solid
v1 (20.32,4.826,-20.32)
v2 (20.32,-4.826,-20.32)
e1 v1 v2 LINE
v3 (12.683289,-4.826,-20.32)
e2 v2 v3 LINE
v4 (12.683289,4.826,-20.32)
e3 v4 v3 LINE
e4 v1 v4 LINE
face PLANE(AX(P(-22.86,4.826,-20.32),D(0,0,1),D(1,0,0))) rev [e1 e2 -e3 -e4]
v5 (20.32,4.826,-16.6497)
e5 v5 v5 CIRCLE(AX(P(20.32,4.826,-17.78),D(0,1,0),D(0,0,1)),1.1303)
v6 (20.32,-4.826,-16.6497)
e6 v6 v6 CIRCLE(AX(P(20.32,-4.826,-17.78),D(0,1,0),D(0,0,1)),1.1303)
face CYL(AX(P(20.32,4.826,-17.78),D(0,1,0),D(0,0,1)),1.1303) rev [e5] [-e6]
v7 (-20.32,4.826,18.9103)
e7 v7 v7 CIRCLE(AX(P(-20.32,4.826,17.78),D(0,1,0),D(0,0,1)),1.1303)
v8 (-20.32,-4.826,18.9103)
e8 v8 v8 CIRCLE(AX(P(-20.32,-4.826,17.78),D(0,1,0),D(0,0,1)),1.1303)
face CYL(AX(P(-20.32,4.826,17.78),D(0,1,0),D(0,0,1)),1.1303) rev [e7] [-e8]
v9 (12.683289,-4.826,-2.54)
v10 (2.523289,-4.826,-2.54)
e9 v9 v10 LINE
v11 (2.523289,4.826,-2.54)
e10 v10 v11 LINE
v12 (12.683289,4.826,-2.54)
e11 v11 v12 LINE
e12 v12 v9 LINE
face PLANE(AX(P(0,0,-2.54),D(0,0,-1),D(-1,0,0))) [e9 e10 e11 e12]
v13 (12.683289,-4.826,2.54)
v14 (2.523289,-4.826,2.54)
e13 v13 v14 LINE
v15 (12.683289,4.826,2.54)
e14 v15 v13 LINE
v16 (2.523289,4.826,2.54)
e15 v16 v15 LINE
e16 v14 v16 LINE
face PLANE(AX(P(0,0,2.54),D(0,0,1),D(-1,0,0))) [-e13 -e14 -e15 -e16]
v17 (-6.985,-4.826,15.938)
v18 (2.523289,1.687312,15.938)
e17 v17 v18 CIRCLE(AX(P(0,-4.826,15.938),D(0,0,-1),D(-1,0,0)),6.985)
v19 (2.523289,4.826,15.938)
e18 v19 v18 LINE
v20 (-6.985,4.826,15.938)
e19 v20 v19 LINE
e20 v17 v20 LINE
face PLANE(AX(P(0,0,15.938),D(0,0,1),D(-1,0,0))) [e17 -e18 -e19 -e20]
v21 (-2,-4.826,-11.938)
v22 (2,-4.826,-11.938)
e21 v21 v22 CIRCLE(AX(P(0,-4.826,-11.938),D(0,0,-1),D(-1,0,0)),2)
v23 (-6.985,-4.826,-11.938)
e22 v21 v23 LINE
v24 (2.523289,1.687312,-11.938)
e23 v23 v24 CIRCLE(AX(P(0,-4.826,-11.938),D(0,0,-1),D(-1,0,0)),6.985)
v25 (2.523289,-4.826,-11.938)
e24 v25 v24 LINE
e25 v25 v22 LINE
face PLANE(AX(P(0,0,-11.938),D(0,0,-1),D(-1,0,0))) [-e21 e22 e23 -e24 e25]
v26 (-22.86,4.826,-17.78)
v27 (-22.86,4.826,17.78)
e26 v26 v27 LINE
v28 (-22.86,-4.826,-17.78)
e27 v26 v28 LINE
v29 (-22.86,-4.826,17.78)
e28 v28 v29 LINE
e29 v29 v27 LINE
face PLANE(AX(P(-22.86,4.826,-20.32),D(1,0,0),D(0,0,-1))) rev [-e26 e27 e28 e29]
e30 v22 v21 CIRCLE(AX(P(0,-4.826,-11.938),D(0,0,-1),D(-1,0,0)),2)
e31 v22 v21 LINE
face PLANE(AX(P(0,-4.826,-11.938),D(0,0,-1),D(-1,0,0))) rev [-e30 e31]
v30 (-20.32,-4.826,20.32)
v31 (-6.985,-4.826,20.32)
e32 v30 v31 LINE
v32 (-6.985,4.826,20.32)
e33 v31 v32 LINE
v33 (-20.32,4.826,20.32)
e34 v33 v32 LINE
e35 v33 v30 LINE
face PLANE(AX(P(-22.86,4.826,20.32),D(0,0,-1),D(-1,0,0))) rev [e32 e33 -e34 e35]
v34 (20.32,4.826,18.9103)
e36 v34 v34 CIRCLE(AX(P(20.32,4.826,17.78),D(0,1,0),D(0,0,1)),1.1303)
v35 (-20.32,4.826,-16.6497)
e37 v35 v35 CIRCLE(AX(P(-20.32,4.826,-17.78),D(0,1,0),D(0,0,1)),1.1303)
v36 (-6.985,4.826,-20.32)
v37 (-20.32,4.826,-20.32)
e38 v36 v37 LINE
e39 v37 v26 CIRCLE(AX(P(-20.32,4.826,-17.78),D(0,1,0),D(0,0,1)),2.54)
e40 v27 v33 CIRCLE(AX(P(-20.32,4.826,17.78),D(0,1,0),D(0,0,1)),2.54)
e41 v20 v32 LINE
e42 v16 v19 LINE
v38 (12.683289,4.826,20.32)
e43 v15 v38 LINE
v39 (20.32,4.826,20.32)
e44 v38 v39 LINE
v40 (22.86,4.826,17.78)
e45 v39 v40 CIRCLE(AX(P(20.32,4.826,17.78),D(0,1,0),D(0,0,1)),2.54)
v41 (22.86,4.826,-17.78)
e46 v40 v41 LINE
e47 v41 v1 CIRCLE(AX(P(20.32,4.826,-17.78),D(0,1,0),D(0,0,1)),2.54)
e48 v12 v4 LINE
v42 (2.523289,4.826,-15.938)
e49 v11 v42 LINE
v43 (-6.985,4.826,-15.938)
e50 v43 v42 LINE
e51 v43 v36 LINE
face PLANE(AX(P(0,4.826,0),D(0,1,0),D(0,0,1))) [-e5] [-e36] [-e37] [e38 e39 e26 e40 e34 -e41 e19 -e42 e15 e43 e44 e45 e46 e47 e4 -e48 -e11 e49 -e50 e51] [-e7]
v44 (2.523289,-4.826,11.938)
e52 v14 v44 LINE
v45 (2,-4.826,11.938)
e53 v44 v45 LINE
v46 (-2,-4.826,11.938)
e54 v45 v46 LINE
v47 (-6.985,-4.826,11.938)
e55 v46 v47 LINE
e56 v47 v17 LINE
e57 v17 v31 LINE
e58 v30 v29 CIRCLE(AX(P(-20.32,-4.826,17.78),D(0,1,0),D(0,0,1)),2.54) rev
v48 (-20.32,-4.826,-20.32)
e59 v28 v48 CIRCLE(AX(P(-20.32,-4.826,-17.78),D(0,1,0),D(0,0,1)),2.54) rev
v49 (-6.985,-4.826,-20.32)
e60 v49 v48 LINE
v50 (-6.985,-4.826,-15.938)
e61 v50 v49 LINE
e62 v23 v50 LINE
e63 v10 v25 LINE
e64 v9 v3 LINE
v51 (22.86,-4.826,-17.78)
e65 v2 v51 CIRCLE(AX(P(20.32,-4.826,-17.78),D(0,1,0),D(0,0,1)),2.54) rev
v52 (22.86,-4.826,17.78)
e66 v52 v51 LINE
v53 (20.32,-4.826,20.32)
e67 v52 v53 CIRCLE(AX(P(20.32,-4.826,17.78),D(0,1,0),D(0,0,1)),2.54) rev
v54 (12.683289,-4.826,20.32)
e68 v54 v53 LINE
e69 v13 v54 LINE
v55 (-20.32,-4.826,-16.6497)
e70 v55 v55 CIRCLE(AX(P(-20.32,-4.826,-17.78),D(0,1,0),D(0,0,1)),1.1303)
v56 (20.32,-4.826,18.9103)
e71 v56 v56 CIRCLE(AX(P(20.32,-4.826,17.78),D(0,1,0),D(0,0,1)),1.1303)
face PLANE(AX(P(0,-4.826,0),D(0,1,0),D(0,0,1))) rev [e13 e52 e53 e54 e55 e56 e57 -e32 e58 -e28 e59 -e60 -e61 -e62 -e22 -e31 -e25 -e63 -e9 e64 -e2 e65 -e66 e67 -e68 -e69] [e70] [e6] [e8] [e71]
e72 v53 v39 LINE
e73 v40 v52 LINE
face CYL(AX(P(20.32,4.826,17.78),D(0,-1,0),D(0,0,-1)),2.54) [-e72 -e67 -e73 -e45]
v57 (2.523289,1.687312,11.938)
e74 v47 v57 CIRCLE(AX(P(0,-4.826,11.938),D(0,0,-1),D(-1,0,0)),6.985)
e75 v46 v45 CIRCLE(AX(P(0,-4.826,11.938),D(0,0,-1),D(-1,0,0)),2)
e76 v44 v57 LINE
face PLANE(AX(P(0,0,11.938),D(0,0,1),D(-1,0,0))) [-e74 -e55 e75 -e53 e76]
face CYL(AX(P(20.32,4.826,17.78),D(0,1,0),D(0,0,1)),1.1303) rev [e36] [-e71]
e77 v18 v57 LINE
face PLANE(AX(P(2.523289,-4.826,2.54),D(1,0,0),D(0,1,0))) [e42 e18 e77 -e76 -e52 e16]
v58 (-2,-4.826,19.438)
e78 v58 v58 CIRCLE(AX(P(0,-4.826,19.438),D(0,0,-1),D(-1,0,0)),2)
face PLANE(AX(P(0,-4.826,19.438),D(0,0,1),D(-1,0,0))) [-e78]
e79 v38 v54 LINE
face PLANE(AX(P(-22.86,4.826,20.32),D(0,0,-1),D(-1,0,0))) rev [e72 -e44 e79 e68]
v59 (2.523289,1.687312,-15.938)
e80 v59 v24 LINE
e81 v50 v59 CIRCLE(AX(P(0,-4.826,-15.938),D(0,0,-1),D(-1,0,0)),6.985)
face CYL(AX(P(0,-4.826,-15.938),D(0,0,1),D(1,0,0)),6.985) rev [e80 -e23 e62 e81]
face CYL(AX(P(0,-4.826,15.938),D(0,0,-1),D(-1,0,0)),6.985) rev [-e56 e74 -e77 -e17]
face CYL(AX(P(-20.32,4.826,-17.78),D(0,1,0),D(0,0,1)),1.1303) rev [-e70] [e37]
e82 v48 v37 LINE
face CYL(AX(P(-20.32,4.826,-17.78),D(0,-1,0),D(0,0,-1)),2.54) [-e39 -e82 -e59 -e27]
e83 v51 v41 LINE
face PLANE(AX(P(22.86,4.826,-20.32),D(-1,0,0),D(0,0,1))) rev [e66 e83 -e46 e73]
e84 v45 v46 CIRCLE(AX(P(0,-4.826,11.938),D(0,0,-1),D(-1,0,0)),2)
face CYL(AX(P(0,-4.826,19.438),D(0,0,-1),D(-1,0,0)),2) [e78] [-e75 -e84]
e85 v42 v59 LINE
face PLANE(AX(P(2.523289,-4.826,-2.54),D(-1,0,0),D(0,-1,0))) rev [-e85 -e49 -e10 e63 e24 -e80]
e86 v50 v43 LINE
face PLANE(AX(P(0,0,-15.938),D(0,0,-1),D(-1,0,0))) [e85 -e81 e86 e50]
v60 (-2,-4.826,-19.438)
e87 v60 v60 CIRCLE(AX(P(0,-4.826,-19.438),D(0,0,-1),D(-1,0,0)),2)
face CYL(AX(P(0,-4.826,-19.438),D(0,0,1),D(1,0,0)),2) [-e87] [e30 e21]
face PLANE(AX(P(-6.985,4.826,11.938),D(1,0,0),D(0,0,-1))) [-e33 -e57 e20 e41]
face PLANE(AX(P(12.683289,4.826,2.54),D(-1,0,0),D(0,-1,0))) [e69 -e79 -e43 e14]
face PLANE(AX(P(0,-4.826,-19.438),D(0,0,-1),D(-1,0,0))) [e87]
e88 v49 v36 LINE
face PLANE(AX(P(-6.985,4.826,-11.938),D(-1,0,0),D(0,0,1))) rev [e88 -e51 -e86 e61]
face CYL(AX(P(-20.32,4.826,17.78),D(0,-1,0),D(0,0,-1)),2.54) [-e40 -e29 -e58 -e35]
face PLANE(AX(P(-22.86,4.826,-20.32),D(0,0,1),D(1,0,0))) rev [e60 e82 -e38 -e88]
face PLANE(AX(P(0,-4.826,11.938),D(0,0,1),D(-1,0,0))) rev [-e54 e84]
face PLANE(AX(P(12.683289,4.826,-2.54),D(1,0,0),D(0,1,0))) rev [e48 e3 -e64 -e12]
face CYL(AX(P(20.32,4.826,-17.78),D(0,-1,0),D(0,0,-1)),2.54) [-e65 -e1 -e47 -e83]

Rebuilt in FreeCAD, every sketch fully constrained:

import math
import FreeCAD as App
import Part
import Sketcher
from FreeCAD import Vector
Q = App.Units.Quantity


def edges_at(feature, points):
    """Names of the edges that pass closest to the given points."""
    edges = feature.Shape.Edges
    near = lambda p: min(range(len(edges)), key=lambda i: edges[i].distToShape(Part.Vertex(*p))[0])
    return sorted({f"Edge{near(p) + 1}" for p in points})


def add_polygon(sketch, points):
    """Adds a closed chain of lines whose ends are joined by coincident constraints."""
    first, n = sketch.GeometryCount, len(points)
    for a, b in zip(points, points[1:] + points[:1]):
        sketch.addGeometry(Part.LineSegment(App.Vector(*a, 0), App.Vector(*b, 0)), False)
    for i in range(n):
        sketch.addConstraint(Sketcher.Constraint("Coincident", first + i, 2, first + (i + 1) % n, 1))

doc = App.newDocument("Part")
params = doc.addObject("Spreadsheet::Sheet", "Params")
for row, (alias, value) in enumerate([
    ("sketch1_width", "1.8 in"),
    ("sketch1_height", "1.6 in"),
    ("pad1_length", "0.38 in"),
    ("fillet_radius", "0.1 in"),
    ("sketch2_diameter", "0.089 in"),
    ("hole_diameter", "0.089 in"),
    ("sketch3_width", "0.55 in"),
    ("sketch3_height", "0.38 in"),
    ("pocket1_length", "0.33 in"),
    ("pad2_length", "7.5 mm"),
    ("sketch5_width", "0.4 in"),
    ("sketch5_height", "0.38 in"),
    ("pocket2_length", "0.7 in"),
    ("sketch6_radius", "0.275 in"),
    ("sketch6_height", "0.38 in"),
    ("pad3_length", "4 mm"),
], start=1):
    params.set(f"A{row}", alias)
    params.set(f"B{row}", "=" + value)
    params.setAlias(f"B{row}", alias)

body = doc.addObject("PartDesign::Body", "Body")

# Sketch on XZ plane
sketch1 = doc.addObject("Sketcher::SketchObject", "Sketch")
body.addObject(sketch1)
sketch1.AttachmentSupport = (doc.XZ_Plane, [""])
sketch1.MapMode = "FlatFace"
add_polygon(sketch1, [(-23, -20), (-23, 20), (23, 20), (23, -20)])  # lines 0-3
sketch1.addConstraint([
    Sketcher.Constraint("Vertical", 0),
    Sketcher.Constraint("Horizontal", 1),
    Sketcher.Constraint("Vertical", 2),
    Sketcher.Constraint("Horizontal", 3),
    Sketcher.Constraint("Symmetric", 0, 2, 2, 2, -1, 1),
    Sketcher.Constraint("DistanceX", 1, 1, 1, 2, Q("1.8 in")),
    Sketcher.Constraint("DistanceY", 0, 1, 0, 2, Q("1.6 in")),
])
sketch1.setExpression("Constraints[9]", "Params.sketch1_width")
sketch1.setExpression("Constraints[10]", "Params.sketch1_height")
pad1 = doc.addObject("PartDesign::Pad", "Pad")
body.addObject(pad1)
pad1.Profile = sketch1
pad1.setExpression("Length", "Params.pad1_length")
pad1.Midplane = True
doc.recompute()

fillet = doc.addObject("PartDesign::Fillet", "Fillet")
body.addObject(fillet)
fillet.Base = (pad1, edges_at(pad1, [
    (22.86, 0, 20.32),
    (-22.86, 0, 20.32),
    (-22.86, 0, -20.32),
    (22.86, 0, -20.32),
]))
fillet.setExpression("Radius", "Params.fillet_radius")

# Sketch on XZ plane
sketch2 = doc.addObject("Sketcher::SketchObject", "Sketch001")
body.addObject(sketch2)
sketch2.AttachmentSupport = (doc.XZ_Plane, [""])
sketch2.MapMode = "FlatFace"
sketch2.AttachmentOffset = App.Placement(Vector(0, 0, -0.19 * 25.4), App.Rotation())
sketch2.addGeometry([
    Part.Circle(Vector(20.3, -17.8, 0), Vector(0, 0, 1), 1.1),
    Part.Circle(Vector(-20.3, 17.8, 0), Vector(0, 0, 1), 1.1),
    Part.Circle(Vector(-20.3, -17.8, 0), Vector(0, 0, 1), 1.1),
    Part.Circle(Vector(20.3, 17.8, 0), Vector(0, 0, 1), 1.1),
], False)
sketch2.addConstraint([
    Sketcher.Constraint("Equal", 0, 1),
    Sketcher.Constraint("Equal", 1, 2),
    Sketcher.Constraint("Equal", 2, 3),
    Sketcher.Constraint("Symmetric", 0, 3, 1, 3, -1, 1),
    Sketcher.Constraint("Symmetric", 2, 3, 3, 3, -1, 1),
    Sketcher.Constraint("Symmetric", 0, 3, 2, 3, -2),
    Sketcher.Constraint("Diameter", 0, Q("0.089 in")),
    Sketcher.Constraint("DistanceX", -1, 1, 0, 3, Q("0.8 in")),
    Sketcher.Constraint("DistanceY", 0, 3, -1, 1, Q("0.7 in")),
])
sketch2.setExpression("Constraints[6]", "Params.sketch2_diameter")
doc.recompute()
hole = doc.addObject("PartDesign::Hole", "Hole")
body.addObject(hole)
hole.Profile = sketch2
hole.ThreadType = "None"
hole.setExpression("Diameter", "Params.hole_diameter")
hole.DepthType = "ThroughAll"
hole.Reversed = True

# Sketch on XY plane
sketch3 = doc.addObject("Sketcher::SketchObject", "Sketch002")
body.addObject(sketch3)
sketch3.AttachmentSupport = (doc.XY_Plane, [""])
sketch3.MapMode = "FlatFace"
sketch3.AttachmentOffset = App.Placement(Vector(0, 0, -0.8 * 25.4), App.Rotation())
add_polygon(sketch3, [(7, 5), (7, -5), (-7, -5), (-7, 5)])  # lines 0-3
sketch3.addConstraint([
    Sketcher.Constraint("Vertical", 0),
    Sketcher.Constraint("Horizontal", 1),
    Sketcher.Constraint("Vertical", 2),
    Sketcher.Constraint("Horizontal", 3),
    Sketcher.Constraint("Symmetric", 0, 2, 2, 2, -1, 1),
    Sketcher.Constraint("DistanceX", 1, 2, 1, 1, Q("0.55 in")),
    Sketcher.Constraint("DistanceY", 0, 2, 0, 1, Q("0.38 in")),
])
sketch3.setExpression("Constraints[9]", "Params.sketch3_width")
sketch3.setExpression("Constraints[10]", "Params.sketch3_height")
pocket1 = doc.addObject("PartDesign::Pocket", "Pocket")
body.addObject(pocket1)
pocket1.Profile = sketch3
pocket1.setExpression("Length", "Params.pocket1_length")
pocket1.Reversed = True

# Sketch on XY plane
sketch4 = doc.addObject("Sketcher::SketchObject", "Sketch003")
body.addObject(sketch4)
sketch4.AttachmentSupport = (doc.XY_Plane, [""])
sketch4.MapMode = "FlatFace"
sketch4.AttachmentOffset = App.Placement(Vector(0, 0, -0.47 * 25.4), App.Rotation())
sketch4.addGeometry(Part.Circle(Vector(0, -4.8, 0), Vector(0, 0, 1), 2), False)
sketch4.addConstraint([
    Sketcher.Constraint("PointOnObject", 0, 3, -2),
    Sketcher.Constraint("Diameter", 0, 4.0),
    Sketcher.Constraint("DistanceY", 0, 3, -1, 1, Q("0.19 in")),
])
pad2 = doc.addObject("PartDesign::Pad", "Pad001")
body.addObject(pad2)
pad2.Profile = sketch4
pad2.setExpression("Length", "Params.pad2_length")
pad2.Reversed = True

# Sketch on XY plane
sketch5 = doc.addObject("Sketcher::SketchObject", "Sketch004")
body.addObject(sketch5)
sketch5.AttachmentSupport = (doc.XY_Plane, [""])
sketch5.MapMode = "FlatFace"
sketch5.AttachmentOffset = App.Placement(Vector(0, 0, -0.8 * 25.4), App.Rotation())
add_polygon(sketch5, [(13, 5), (13, -5), (3, -5), (3, 5)])  # lines 0-3
sketch5.addConstraint([
    Sketcher.Constraint("Vertical", 0),
    Sketcher.Constraint("Horizontal", 1),
    Sketcher.Constraint("Vertical", 2),
    Sketcher.Constraint("Horizontal", 3),
    Sketcher.Constraint("DistanceX", 1, 2, 1, 1, Q("0.4 in")),
    Sketcher.Constraint("DistanceY", 0, 2, 0, 1, Q("0.38 in")),
    Sketcher.Constraint("DistanceY", 0, 2, -1, 1, Q("0.19 in")),
    Sketcher.Constraint("DistanceX", -1, 1, 0, 2, 12.683289),
])
sketch5.setExpression("Constraints[8]", "Params.sketch5_width")
sketch5.setExpression("Constraints[9]", "Params.sketch5_height")
pocket2 = doc.addObject("PartDesign::Pocket", "Pocket001")
body.addObject(pocket2)
pocket2.Profile = sketch5
pocket2.setExpression("Length", "Params.pocket2_length")
pocket2.Reversed = True

# Sketch on XY plane
sketch6 = doc.addObject("Sketcher::SketchObject", "Sketch005")
body.addObject(sketch6)
sketch6.AttachmentSupport = (doc.XY_Plane, [""])
sketch6.MapMode = "FlatFace"
sketch6.AttachmentOffset = App.Placement(Vector(0, 0, -0.47 * 25.4), App.Rotation())
sketch6.addGeometry([
    Part.LineSegment(Vector(-7, 4.8, 0), Vector(2.5, 4.8, 0)),
    Part.LineSegment(Vector(2.5, 4.8, 0), Vector(2.5, 1.7, 0)),
    Part.ArcOfCircle(Part.Circle(Vector(0, -4.8, 0), Vector(0, 0, 1), 7), math.radians(69), math.radians(180)),
    Part.LineSegment(Vector(-7, -4.8, 0), Vector(-7, 4.8, 0)),
], False)
sketch6.addConstraint([
    Sketcher.Constraint("Coincident", 0, 2, 1, 1),
    Sketcher.Constraint("Coincident", 1, 2, 2, 1),
    Sketcher.Constraint("Tangent", 2, 2, 3, 1),
    Sketcher.Constraint("Coincident", 3, 2, 0, 1),
    Sketcher.Constraint("Horizontal", 0),
    Sketcher.Constraint("Vertical", 1),
    Sketcher.Constraint("Vertical", 3),
    Sketcher.Constraint("PointOnObject", 2, 3, -2),
    Sketcher.Constraint("Radius", 2, Q("0.275 in")),
    Sketcher.Constraint("DistanceY", 3, 1, 3, 2, Q("0.38 in")),
    Sketcher.Constraint("DistanceY", 2, 3, -1, 1, Q("0.19 in")),
    Sketcher.Constraint("DistanceX", 0, 1, 0, 2, 9.508289),
])
sketch6.setExpression("Constraints[8]", "Params.sketch6_radius")
sketch6.setExpression("Constraints[9]", "Params.sketch6_height")
pad3 = doc.addObject("PartDesign::Pad", "Pad002")
body.addObject(pad3)
pad3.Profile = sketch6
pad3.setExpression("Length", "Params.pad3_length")
pad3.Reversed = True
doc.recompute()

mirrored = doc.addObject("PartDesign::Mirrored", "Mirrored")
body.addObject(mirrored)
mirrored.Originals = [pocket1, pad2, pocket2, pad3]
mirrored.MirrorPlane = (doc.XY_Plane, [""])
body.Tip = mirrored

doc.recompute()
